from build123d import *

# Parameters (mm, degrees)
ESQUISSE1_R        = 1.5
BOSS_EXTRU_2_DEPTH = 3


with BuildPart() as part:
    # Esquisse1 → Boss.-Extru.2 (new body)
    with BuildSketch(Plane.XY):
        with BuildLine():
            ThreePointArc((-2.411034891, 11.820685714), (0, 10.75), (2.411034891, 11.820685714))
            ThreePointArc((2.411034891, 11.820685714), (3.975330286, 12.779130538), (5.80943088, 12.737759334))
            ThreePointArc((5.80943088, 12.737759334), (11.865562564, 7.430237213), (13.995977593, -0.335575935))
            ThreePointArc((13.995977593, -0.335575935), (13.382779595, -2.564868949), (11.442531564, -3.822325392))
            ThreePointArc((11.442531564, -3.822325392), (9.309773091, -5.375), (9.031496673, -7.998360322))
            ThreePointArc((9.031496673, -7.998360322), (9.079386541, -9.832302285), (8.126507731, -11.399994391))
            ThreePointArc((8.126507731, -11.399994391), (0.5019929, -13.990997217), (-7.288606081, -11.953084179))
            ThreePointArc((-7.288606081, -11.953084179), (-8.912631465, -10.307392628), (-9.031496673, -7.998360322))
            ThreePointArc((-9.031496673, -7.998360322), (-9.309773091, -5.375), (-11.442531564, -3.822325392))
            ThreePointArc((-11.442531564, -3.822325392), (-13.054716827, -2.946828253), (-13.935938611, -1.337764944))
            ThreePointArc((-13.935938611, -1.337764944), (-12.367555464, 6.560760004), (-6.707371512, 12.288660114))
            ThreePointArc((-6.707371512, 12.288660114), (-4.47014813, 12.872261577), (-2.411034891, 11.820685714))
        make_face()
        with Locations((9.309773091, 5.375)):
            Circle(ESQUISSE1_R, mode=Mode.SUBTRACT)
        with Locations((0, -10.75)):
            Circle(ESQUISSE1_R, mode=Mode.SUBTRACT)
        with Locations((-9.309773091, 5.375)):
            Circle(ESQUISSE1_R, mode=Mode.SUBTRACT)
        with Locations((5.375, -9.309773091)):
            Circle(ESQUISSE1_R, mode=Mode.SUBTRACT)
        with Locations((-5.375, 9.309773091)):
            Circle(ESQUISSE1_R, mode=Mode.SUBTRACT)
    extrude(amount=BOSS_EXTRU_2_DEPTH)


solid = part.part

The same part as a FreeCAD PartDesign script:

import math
import FreeCAD as App
import Part
import Sketcher
from FreeCAD import Vector

doc = App.newDocument("Part")
body = doc.addObject("PartDesign::Body", "Body")

sketch1 = doc.addObject("Sketcher::SketchObject", "Sketch")
body.addObject(sketch1)
sketch1.AttachmentSupport = (doc.XY_Plane, [""])
sketch1.MapMode = "FlatFace"
sketch1.addGeometry([
    Part.ArcOfCircle(Part.Circle(Vector(0, 14, 0), Vector(0, 0, 1), 3.3), math.radians(-138), math.radians(-42)),
    Part.ArcOfCircle(Part.Circle(Vector(-4.8, 9.6, 0), Vector(0, 0, 1), 3.2), math.radians(42), math.radians(125)),
    Part.ArcOfCircle(Part.Circle(Vector(0, 0, 0), Vector(0, 0, 1), 14), math.radians(119), math.radians(185)),
    Part.ArcOfCircle(Part.Circle(Vector(-10.8, -0.6, 0), Vector(0, 0, 1), 3.2), math.radians(-168), math.radians(-102)),
    Part.ArcOfCircle(Part.Circle(Vector(-12.1, -7, 0), Vector(0, 0, 1), 3.3), math.radians(-18), math.radians(78)),
    Part.ArcOfCircle(Part.Circle(Vector(-5.9, -9, 0), Vector(0, 0, 1), 3.2), math.radians(162), math.radians(245)),
    Part.ArcOfCircle(Part.Circle(Vector(0, 0, 0), Vector(0, 0, 1), 14), math.radians(-121), math.radians(-55)),
    Part.ArcOfCircle(Part.Circle(Vector(5.9, -9, 0), Vector(0, 0, 1), 3.2), math.radians(-48), math.radians(18)),
    Part.ArcOfCircle(Part.Circle(Vector(12.1, -7, 0), Vector(0, 0, 1), 3.3), math.radians(102), math.radians(198)),
    Part.ArcOfCircle(Part.Circle(Vector(10.8, -0.6, 0), Vector(0, 0, 1), 3.2), math.radians(-78), math.radians(5)),
    Part.ArcOfCircle(Part.Circle(Vector(0, 0, 0), Vector(0, 0, 1), 14), math.radians(-1), math.radians(65)),
    Part.ArcOfCircle(Part.Circle(Vector(4.8, 9.6, 0), Vector(0, 0, 1), 3.2), math.radians(72), math.radians(138)),
    Part.Circle(Vector(5.4, -9.3, 0), Vector(0, 0, 1), 1.5),
    Part.Circle(Vector(0, -10.8, 0), Vector(0, 0, 1), 1.5),
    Part.Circle(Vector(9.3, 5.4, 0), Vector(0, 0, 1), 1.5),
    Part.Circle(Vector(-5.4, 9.3, 0), Vector(0, 0, 1), 1.5),
    Part.Circle(Vector(-9.3, 5.4, 0), Vector(0, 0, 1), 1.5),
], False)
sketch1.addConstraint([
    Sketcher.Constraint("Tangent", 0, 1, 1, 1),
    Sketcher.Constraint("Coincident", 1, 2, 2, 1),
    Sketcher.Constraint("Coincident", 2, 2, 3, 1),
    Sketcher.Constraint("Tangent", 3, 2, 4, 2),
    Sketcher.Constraint("Tangent", 4, 1, 5, 1),
    Sketcher.Constraint("Coincident", 5, 2, 6, 1),
    Sketcher.Constraint("Coincident", 6, 2, 7, 1),
    Sketcher.Constraint("Tangent", 7, 2, 8, 2),
    Sketcher.Constraint("Tangent", 8, 1, 9, 1),
    Sketcher.Constraint("Coincident", 9, 2, 10, 1),
    Sketcher.Constraint("Coincident", 10, 2, 11, 1),
    Sketcher.Constraint("Tangent", 11, 2, 0, 2),
    Sketcher.Constraint("Coincident", 2, 3, -1, 1),
    Sketcher.Constraint("Coincident", 6, 3, -1, 1),
    Sketcher.Constraint("Coincident", 10, 3, -1, 1),
    Sketcher.Constraint("Equal", 0, 1),
    Sketcher.Constraint("Equal", 1, 3),
    Sketcher.Constraint("Equal", 3, 4),
    Sketcher.Constraint("Equal", 4, 5),
    Sketcher.Constraint("Equal", 2, 6),
    Sketcher.Constraint("Equal", 5, 7),
    Sketcher.Constraint("Equal", 7, 8),
    Sketcher.Constraint("Equal", 8, 9),
    Sketcher.Constraint("Equal", 6, 10),
    Sketcher.Constraint("Equal", 9, 11),
    Sketcher.Constraint("Equal", 12, 13),
    Sketcher.Constraint("Equal", 13, 14),
    Sketcher.Constraint("Equal", 14, 15),
    Sketcher.Constraint("Equal", 15, 16),
    Sketcher.Constraint("Symmetric", 12, 3, 15, 3, -1, 1),
    Sketcher.Constraint("Symmetric", 5, 3, 7, 3, -2),
    Sketcher.Constraint("Symmetric", 3, 3, 9, 3, -2),
    Sketcher.Constraint("Symmetric", 1, 3, 11, 3, -2),
    Sketcher.Constraint("Symmetric", 14, 3, 16, 3, -2),
    Sketcher.Constraint("PointOnObject", 13, 3, -2),
    Sketcher.Constraint("Diameter", 12, 3.0),
    Sketcher.Constraint("Radius", 2, 14.0),
    Sketcher.Constraint("Radius", 0, 3.25),
    Sketcher.Constraint("DistanceY", -1, 1, 0, 3, 14.0),
    Sketcher.Constraint("DistanceY", 4, 3, -1, 1, 7.0),
    Sketcher.Constraint("DistanceY", 13, 3, -1, 1, 10.75),
    Sketcher.Constraint("DistanceX", -1, 1, 12, 3, 5.375),
    Sketcher.Constraint("DistanceY", -1, 1, 14, 3, 5.375),
    Sketcher.Constraint("DistanceY", 15, 3, 1, 3, 0.331598),
    Sketcher.Constraint("DistanceX", 1, 2, 1, 3, 1.885302),
    Sketcher.Constraint("DistanceX", 16, 3, 1, 2, 2.602402),
    Sketcher.Constraint("DistanceX", 2, 2, 5, 3, 7.997301),
    Sketcher.Constraint("DistanceX", 6, 2, 9, 3, 2.6342),
    Sketcher.Constraint("DistanceY", 3, 3, -1, 1, 0.644651),
])
pad1 = doc.addObject("PartDesign::Pad", "Pad")
body.addObject(pad1)
pad1.Profile = sketch1
pad1.Length = 3

doc.recompute()
